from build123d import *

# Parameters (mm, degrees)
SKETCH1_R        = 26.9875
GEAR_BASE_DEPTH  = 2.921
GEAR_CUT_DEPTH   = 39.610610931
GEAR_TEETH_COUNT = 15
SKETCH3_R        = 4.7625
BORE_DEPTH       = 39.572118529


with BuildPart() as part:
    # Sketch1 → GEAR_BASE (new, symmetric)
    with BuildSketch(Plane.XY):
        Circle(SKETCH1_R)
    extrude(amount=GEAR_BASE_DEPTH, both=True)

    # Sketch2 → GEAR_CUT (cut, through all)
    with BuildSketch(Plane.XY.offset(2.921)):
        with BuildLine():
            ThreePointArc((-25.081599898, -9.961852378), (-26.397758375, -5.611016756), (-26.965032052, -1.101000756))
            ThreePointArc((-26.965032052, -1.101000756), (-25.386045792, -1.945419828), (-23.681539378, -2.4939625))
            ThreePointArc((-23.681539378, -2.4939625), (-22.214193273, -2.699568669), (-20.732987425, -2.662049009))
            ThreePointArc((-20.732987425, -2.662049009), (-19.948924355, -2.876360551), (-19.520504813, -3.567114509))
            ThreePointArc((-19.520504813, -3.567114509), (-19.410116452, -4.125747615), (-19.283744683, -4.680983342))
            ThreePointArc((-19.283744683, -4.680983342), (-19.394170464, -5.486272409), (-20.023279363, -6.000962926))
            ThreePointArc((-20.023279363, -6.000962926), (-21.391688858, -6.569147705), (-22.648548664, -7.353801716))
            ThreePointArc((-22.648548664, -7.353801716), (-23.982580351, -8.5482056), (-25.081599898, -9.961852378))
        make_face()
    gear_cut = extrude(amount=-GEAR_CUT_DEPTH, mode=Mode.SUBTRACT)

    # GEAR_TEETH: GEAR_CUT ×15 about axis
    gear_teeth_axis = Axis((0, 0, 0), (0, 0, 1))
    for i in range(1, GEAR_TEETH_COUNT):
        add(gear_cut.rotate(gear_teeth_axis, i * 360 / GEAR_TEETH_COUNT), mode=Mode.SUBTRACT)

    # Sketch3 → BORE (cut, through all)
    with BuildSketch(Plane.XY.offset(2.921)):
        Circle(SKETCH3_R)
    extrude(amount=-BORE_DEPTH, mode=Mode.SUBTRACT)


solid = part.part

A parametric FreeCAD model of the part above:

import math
import FreeCAD as App
import Part
import Sketcher
from FreeCAD import Vector
Q = App.Units.Quantity

doc = App.newDocument("Part")
params = doc.addObject("Spreadsheet::Sheet", "Params")
for row, (alias, value) in enumerate([
    ("sketch1_diameter", "2.125 in"),
    ("pad1_length", "0.23 in"),
    ("sketch2_radius", "1.0625 in"),
    ("sketch2_radius2", "0.78125 in"),
    ("sketch3_diameter", "0.375 in"),
], start=1):
    params.set(f"A{row}", alias)
    params.set(f"B{row}", "=" + value)
    params.setAlias(f"B{row}", alias)

body = doc.addObject("PartDesign::Body", "Body")

# Sketch on XY plane
sketch1 = body.newObject("Sketcher::SketchObject", "Sketch")
sketch1.AttachmentSupport = (doc.getObject("XY_Plane"), [""])
sketch1.MapMode = "FlatFace"
sketch1.addGeometry(Part.Circle(Vector(0, 0, 0), Vector(0, 0, 1), 26.9875), False)
sketch1.addConstraint(Sketcher.Constraint("Coincident", 0, 3, -1, 1))
sketch1.addConstraint(Sketcher.Constraint("Diameter", 0, Q("2.125 in")))
sketch1.setExpression("Constraints[1]", "Params.sketch1_diameter")
pad1 = body.newObject("PartDesign::Pad", "Pad")
pad1.Profile = sketch1
pad1.setExpression("Length", "Params.pad1_length")
pad1.Midplane = True

# Sketch on XY plane
sketch2 = body.newObject("Sketcher::SketchObject", "Sketch001")
sketch2.AttachmentSupport = (doc.getObject("XY_Plane"), [""])
sketch2.MapMode = "FlatFace"
sketch2.AttachmentOffset = App.Placement(Vector(0, 0, 0.115 * 25.4), App.Rotation())
sketch2.addGeometry(Part.ArcOfCircle(Part.Circle(Vector(0, 0, 0), Vector(0, 0, 1), 26.9875), math.radians(-177.661873), math.radians(-158.338127)), False)
sketch2.addGeometry(Part.ArcOfCircle(Part.Circle(Vector(-16.688107, -15.353222, 0), Vector(0, 0, 1), 9.97585), math.radians(126.690134), math.radians(147.28626)), False)
sketch2.addGeometry(Part.ArcOfCircle(Part.Circle(Vector(-17.262103, -14.582871, 0), Vector(0, 0, 1), 9.015167), math.radians(107.835263), math.radians(126.690134)), False)
sketch2.addGeometry(Part.ArcOfCircle(Part.Circle(Vector(-20.363634, -4.943118, 0), Vector(0, 0, 1), 1.11125), math.radians(-72.164737), math.radians(13.644213)), False)
sketch2.addGeometry(Part.ArcOfCircle(Part.Circle(Vector(0, 0, 0), Vector(0, 0, 1), 19.84375), math.radians(-169.644213), math.radians(-166.355787)), False)
sketch2.addGeometry(Part.ArcOfCircle(Part.Circle(Vector(-20.613653, -3.766873, 0), Vector(0, 0, 1), 1.11125), math.radians(10.355787), math.radians(96.164737)), False)
sketch2.addGeometry(Part.ArcOfCircle(Part.Circle(Vector(-21.701104, 6.300986, 0), Vector(0, 0, 1), 9.015167), math.radians(-102.690134), math.radians(-83.835263)), False)
sketch2.addGeometry(Part.ArcOfCircle(Part.Circle(Vector(-21.490062, 7.238201, 0), Vector(0, 0, 1), 9.97585), math.radians(-123.28626), math.radians(-102.690134)), False)
sketch2.addConstraint(Sketcher.Constraint("Coincident", 0, 2, 1, 2))
sketch2.addConstraint(Sketcher.Constraint("Tangent", 1, 1, 2, 2))
sketch2.addConstraint(Sketcher.Constraint("Tangent", 2, 1, 3, 1))
sketch2.addConstraint(Sketcher.Constraint("Tangent", 3, 2, 4, 2))
sketch2.addConstraint(Sketcher.Constraint("Tangent", 4, 1, 5, 1))
sketch2.addConstraint(Sketcher.Constraint("Tangent", 5, 2, 6, 2))
sketch2.addConstraint(Sketcher.Constraint("Tangent", 6, 1, 7, 2))
sketch2.addConstraint(Sketcher.Constraint("Coincident", 7, 1, 0, 1))
sketch2.addConstraint(Sketcher.Constraint("Coincident", 0, 3, -1, 1))
sketch2.addConstraint(Sketcher.Constraint("Coincident", 4, 3, -1, 1))
sketch2.addConstraint(Sketcher.Constraint("Equal", 3, 5))
sketch2.addConstraint(Sketcher.Constraint("Equal", 2, 6))
sketch2.addConstraint(Sketcher.Constraint("Equal", 1, 7))
sketch2.addConstraint(Sketcher.Constraint("Radius", 0, Q("1.0625 in")))
sketch2.addConstraint(Sketcher.Constraint("Radius", 4, Q("0.78125 in")))
sketch2.addConstraint(Sketcher.Constraint("Radius", 1, 9.97585))
sketch2.addConstraint(Sketcher.Constraint("Radius", 3, 1.11125))
sketch2.addConstraint(Sketcher.Constraint("Radius", 2, 9.015167))
sketch2.addConstraint(Sketcher.Constraint("DistanceX", 3, 3, 2, 1, Q("0.0133998 in")))
sketch2.addConstraint(Sketcher.Constraint("DistanceY", -1, 1, 7, 3, 7.238201))
sketch2.addConstraint(Sketcher.Constraint("DistanceX", 0, 2, -1, 1, 25.0816))
sketch2.addConstraint(Sketcher.Constraint("DistanceY", 1, 1, -1, 1, 7.353802))
sketch2.addConstraint(Sketcher.Constraint("DistanceY", 7, 1, -1, 1, 1.101001))
sketch2.addConstraint(Sketcher.Constraint("DistanceX", 6, 3, 2, 3, 4.439001))
sketch2.setExpression("Constraints[13]", "Params.sketch2_radius")
sketch2.setExpression("Constraints[14]", "Params.sketch2_radius2")
pocket1 = body.newObject("PartDesign::Pocket", "Pocket")
pocket1.Profile = sketch2
pocket1.Type = "ThroughAll"
doc.recompute()

polarpattern = body.newObject("PartDesign::PolarPattern", "PolarPattern")
polarpattern.Originals = [pocket1]
polarpattern.Axis = (doc.getObject("Z_Axis"), [""])
polarpattern.Angle = 360
polarpattern.Occurrences = 15
body.Tip = polarpattern

# Sketch on XY plane
sketch3 = body.newObject("Sketcher::SketchObject", "Sketch002")
sketch3.AttachmentSupport = (doc.getObject("XY_Plane"), [""])
sketch3.MapMode = "FlatFace"
sketch3.AttachmentOffset = App.Placement(Vector(0, 0, 0.115 * 25.4), App.Rotation())
sketch3.addGeometry(Part.Circle(Vector(0, 0, 0), Vector(0, 0, 1), 4.7625), False)
sketch3.addConstraint(Sketcher.Constraint("Coincident", 0, 3, -1, 1))
sketch3.addConstraint(Sketcher.Constraint("Diameter", 0, Q("0.375 in")))
sketch3.setExpression("Constraints[1]", "Params.sketch3_diameter")
pocket2 = body.newObject("PartDesign::Pocket", "Pocket001")
pocket2.Profile = sketch3
pocket2.Type = "ThroughAll"

doc.recompute()
